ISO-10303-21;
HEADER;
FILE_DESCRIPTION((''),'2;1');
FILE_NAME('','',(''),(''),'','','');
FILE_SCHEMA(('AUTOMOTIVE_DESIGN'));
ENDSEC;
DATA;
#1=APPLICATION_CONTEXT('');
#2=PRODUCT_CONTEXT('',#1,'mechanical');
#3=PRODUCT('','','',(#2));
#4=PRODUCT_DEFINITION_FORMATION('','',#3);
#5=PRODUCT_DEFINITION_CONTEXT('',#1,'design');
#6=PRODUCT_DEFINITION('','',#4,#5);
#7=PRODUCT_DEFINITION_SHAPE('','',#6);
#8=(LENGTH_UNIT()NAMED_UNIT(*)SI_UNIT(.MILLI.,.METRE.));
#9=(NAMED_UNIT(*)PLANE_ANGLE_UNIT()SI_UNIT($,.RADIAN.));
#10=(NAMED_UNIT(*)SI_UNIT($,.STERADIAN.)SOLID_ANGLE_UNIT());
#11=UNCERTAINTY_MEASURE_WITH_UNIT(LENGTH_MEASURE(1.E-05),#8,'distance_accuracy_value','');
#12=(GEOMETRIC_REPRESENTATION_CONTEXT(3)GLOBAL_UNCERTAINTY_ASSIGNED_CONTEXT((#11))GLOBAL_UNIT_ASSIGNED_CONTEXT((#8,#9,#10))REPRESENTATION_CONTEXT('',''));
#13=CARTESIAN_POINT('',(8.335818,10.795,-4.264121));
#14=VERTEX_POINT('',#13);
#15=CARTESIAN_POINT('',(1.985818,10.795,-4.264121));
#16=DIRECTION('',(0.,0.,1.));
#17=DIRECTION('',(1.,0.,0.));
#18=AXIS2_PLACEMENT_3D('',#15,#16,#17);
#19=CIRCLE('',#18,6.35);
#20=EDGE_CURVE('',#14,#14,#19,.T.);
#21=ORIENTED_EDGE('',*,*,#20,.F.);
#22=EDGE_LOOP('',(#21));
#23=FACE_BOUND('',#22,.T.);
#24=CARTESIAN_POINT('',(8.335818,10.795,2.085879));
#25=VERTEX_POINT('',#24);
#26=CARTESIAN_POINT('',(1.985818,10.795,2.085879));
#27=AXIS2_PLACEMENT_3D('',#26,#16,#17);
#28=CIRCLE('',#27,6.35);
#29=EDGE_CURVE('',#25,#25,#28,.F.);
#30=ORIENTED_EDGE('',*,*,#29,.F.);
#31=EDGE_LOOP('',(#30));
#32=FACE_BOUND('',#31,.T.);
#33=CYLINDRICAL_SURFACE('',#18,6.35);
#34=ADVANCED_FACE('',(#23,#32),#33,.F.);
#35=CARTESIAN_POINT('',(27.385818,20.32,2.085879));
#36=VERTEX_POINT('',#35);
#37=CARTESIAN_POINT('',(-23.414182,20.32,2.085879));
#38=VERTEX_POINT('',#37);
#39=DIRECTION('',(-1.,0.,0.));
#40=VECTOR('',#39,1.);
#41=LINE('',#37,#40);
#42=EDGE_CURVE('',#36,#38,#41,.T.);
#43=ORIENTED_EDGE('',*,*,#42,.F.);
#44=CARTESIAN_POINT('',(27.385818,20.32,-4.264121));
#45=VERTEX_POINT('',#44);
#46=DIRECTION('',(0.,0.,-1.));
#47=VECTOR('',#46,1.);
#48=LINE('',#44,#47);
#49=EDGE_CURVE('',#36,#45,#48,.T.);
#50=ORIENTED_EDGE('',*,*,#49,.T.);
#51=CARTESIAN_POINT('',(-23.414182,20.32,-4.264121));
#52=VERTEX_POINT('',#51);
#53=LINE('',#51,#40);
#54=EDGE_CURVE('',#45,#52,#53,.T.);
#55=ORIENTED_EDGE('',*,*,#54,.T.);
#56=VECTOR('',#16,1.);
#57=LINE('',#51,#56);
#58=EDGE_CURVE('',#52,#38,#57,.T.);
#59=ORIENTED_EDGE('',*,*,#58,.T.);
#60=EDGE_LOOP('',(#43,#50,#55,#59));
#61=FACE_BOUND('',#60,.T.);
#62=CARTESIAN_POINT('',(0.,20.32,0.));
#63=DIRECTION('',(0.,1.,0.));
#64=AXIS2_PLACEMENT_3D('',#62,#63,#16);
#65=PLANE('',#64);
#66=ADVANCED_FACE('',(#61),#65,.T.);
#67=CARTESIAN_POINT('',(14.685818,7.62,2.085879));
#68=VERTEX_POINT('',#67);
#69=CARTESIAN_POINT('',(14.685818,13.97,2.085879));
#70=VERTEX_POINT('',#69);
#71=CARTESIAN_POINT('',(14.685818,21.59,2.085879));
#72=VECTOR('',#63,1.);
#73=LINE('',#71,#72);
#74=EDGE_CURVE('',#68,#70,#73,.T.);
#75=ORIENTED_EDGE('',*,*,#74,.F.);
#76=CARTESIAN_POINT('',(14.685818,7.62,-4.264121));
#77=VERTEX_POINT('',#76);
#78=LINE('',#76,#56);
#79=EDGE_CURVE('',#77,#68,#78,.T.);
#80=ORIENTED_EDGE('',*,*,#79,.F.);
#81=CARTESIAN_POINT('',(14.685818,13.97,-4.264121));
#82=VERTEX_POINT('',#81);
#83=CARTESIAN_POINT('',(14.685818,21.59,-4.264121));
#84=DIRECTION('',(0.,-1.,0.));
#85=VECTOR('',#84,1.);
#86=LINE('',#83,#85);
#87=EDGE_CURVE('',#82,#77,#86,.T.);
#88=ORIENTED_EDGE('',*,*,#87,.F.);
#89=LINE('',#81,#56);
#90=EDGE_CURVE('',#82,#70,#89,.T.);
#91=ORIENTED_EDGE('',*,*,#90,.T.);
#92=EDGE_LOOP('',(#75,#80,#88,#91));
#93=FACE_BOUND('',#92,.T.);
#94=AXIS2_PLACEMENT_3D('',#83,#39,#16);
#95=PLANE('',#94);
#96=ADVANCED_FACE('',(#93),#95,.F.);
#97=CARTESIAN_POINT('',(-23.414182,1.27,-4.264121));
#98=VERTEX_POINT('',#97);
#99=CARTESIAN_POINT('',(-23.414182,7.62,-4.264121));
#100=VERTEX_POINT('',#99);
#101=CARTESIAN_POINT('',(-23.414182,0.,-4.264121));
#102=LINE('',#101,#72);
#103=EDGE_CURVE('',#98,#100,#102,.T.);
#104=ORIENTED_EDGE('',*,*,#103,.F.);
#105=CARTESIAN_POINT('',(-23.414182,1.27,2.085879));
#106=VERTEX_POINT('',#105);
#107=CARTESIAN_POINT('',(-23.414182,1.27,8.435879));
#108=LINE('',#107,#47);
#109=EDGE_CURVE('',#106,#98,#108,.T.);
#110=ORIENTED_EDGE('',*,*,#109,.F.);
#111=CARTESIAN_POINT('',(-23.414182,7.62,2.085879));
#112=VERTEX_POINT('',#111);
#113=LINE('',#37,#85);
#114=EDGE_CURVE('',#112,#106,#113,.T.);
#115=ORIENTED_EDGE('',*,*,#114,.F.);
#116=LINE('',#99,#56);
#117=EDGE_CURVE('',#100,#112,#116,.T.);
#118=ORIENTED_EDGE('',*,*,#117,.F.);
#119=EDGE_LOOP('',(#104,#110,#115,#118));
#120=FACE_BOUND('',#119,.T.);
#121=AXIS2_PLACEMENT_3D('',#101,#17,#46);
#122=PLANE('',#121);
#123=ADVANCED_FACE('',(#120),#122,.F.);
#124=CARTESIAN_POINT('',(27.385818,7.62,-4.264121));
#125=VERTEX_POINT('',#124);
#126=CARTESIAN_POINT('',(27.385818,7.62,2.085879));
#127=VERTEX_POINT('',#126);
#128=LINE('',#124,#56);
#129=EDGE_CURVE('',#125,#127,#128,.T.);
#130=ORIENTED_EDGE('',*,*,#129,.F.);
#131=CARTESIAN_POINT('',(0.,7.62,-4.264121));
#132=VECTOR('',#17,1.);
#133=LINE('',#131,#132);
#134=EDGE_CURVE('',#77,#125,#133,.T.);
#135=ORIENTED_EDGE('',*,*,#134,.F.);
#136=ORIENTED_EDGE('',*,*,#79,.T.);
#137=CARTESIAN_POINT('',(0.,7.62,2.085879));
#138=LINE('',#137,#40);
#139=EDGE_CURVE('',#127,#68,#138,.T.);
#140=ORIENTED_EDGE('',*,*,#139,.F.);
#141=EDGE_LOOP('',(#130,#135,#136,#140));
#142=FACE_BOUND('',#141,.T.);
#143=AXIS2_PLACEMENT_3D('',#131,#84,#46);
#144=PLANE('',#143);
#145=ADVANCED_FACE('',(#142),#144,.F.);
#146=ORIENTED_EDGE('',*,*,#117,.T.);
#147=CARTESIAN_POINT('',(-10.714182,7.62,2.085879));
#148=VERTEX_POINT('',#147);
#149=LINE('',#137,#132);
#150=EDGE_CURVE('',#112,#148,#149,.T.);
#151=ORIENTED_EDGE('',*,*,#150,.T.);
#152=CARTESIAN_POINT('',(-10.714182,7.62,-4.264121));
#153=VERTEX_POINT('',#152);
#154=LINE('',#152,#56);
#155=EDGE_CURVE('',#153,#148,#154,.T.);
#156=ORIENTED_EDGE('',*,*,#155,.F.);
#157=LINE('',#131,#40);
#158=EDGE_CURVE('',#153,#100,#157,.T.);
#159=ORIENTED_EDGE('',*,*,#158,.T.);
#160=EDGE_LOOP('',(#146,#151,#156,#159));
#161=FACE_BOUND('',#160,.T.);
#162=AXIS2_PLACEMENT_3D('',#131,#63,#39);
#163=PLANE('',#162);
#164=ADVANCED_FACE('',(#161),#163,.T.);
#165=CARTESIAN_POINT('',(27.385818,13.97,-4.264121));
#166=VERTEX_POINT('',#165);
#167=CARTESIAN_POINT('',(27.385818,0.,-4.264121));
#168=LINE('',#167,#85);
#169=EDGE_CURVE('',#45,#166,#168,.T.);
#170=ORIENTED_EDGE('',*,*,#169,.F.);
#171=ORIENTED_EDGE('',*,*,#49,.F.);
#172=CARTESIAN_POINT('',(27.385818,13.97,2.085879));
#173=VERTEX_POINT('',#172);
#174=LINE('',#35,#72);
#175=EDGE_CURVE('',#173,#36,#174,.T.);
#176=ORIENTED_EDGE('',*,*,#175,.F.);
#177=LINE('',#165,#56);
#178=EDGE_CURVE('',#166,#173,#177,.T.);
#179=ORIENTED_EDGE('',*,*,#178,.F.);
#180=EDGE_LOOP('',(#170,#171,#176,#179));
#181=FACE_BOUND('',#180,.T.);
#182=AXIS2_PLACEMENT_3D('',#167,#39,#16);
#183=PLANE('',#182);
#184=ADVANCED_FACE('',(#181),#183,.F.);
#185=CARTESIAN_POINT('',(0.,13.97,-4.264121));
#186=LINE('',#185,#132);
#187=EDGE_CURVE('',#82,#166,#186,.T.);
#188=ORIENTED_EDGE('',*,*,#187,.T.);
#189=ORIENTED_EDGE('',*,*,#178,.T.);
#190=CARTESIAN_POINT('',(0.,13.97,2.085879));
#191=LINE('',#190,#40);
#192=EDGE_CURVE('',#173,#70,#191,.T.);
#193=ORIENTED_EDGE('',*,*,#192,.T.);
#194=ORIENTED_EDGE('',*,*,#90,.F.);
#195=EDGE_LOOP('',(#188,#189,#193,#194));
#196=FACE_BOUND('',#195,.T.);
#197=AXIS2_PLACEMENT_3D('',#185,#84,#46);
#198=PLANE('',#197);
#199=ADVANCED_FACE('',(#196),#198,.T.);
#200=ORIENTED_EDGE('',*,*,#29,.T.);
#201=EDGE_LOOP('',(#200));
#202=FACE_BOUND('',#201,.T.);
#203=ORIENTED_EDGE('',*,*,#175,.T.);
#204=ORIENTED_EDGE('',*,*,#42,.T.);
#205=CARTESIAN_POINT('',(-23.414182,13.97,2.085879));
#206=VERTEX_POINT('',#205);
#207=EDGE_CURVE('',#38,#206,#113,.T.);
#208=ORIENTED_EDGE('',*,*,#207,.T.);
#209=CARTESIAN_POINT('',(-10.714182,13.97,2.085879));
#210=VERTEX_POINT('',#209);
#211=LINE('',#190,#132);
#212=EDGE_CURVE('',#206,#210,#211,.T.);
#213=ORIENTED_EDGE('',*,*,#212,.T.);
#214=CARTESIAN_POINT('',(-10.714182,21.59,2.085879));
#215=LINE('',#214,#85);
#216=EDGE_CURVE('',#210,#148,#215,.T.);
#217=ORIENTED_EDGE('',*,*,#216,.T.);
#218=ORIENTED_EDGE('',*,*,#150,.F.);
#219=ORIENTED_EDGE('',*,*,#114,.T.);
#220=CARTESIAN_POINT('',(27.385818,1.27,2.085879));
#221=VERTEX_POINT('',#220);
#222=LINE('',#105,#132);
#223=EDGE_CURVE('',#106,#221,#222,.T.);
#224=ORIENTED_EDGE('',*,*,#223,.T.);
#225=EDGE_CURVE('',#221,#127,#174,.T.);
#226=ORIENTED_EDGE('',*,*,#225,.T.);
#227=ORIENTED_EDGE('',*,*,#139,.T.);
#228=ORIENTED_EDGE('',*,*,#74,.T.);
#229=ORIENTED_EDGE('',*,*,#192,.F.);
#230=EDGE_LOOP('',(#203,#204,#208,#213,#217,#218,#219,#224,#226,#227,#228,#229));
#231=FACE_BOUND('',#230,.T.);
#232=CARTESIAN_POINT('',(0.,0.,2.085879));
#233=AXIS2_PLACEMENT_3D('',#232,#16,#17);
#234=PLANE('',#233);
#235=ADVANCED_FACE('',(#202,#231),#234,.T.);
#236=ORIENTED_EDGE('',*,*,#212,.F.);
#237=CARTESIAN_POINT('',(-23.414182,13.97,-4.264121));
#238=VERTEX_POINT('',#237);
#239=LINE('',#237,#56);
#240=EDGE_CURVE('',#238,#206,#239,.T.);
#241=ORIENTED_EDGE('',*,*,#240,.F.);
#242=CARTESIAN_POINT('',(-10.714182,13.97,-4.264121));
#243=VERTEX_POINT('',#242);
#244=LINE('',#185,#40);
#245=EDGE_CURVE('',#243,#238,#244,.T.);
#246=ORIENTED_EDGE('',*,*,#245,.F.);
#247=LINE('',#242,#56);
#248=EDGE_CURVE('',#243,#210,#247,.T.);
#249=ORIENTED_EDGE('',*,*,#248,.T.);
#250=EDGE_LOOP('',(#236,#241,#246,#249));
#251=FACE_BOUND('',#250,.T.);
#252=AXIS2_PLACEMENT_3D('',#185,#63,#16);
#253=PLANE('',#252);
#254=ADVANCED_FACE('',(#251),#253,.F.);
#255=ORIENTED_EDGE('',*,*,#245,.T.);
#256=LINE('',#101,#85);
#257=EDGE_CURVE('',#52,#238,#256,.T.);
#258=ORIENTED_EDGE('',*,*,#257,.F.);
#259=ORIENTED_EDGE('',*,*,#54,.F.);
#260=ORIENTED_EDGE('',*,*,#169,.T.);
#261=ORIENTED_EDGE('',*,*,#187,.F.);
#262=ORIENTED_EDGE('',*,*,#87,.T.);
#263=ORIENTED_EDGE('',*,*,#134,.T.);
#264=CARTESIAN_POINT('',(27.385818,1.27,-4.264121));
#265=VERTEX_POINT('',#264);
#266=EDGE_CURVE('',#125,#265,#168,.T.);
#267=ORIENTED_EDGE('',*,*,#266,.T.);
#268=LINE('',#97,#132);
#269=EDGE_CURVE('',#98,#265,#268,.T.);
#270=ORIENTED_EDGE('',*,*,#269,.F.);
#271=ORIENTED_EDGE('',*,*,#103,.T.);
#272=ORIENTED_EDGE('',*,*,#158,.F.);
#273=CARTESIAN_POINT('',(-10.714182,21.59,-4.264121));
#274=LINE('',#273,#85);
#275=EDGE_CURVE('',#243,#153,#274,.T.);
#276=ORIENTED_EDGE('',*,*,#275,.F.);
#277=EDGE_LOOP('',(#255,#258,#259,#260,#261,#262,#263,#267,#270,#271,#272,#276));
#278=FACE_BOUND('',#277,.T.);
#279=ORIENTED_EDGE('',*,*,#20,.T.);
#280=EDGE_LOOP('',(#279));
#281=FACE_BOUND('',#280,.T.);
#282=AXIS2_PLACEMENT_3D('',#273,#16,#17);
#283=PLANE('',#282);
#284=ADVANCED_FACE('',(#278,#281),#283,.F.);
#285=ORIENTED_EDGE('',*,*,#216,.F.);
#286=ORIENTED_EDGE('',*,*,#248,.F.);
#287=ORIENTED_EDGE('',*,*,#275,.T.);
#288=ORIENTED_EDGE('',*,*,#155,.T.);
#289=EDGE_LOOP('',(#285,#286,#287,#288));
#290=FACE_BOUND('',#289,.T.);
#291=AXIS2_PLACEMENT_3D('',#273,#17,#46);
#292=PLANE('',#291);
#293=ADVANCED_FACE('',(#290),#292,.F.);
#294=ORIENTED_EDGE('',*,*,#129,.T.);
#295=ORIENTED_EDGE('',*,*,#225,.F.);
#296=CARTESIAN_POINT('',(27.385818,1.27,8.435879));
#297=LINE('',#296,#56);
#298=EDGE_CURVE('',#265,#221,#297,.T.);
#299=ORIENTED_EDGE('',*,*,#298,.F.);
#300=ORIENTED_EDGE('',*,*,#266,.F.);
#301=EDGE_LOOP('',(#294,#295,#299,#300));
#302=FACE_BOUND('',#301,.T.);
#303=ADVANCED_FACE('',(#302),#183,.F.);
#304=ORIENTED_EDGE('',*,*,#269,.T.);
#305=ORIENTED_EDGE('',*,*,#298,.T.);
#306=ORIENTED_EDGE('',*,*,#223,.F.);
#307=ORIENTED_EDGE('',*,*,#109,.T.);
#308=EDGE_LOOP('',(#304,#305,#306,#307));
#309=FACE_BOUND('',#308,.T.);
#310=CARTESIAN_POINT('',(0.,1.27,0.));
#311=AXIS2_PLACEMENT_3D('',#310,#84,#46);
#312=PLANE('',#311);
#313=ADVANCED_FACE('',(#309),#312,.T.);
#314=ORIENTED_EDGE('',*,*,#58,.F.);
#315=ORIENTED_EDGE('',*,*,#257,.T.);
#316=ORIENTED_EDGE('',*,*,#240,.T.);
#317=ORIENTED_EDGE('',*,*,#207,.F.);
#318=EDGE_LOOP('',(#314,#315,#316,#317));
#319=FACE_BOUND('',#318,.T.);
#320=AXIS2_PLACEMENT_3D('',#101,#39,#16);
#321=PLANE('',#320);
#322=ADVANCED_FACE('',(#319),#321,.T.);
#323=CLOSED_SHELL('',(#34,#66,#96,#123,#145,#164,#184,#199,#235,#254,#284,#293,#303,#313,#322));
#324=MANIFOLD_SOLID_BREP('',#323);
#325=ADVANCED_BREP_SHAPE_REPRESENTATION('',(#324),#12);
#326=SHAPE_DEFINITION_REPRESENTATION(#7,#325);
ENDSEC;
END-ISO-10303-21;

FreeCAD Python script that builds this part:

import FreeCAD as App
import Part
import Sketcher

V = App.Vector
Q = App.Units.Quantity


def add_polygon(sketch, points):
    """Adds a closed chain of lines whose ends are joined by coincident constraints."""
    first, n = sketch.GeometryCount, len(points)
    for a, b in zip(points, points[1:] + points[:1]):
        sketch.addGeometry(Part.LineSegment(App.Vector(*a, 0), App.Vector(*b, 0)), False)
    for i in range(n):
        sketch.addConstraint(Sketcher.Constraint("Coincident", first + i, 2, first + (i + 1) % n, 1))

doc = App.newDocument("Part")
body = doc.addObject("PartDesign::Body", "Body")

# Sketch on XZ plane
sketch1 = body.newObject("Sketcher::SketchObject", "Sketch")
sketch1.AttachmentSupport = (doc.getObject("XZ_Plane"), [""])
sketch1.MapMode = "FlatFace"
add_polygon(sketch1, [(-11, -4), (-11, 8), (15, 8), (15, -4)])  # lines 0-3
sketch1.addConstraint([
    Sketcher.Constraint("Vertical", 0),
    Sketcher.Constraint("Horizontal", 1),
    Sketcher.Constraint("Vertical", 2),
    Sketcher.Constraint("Horizontal", 3),
    Sketcher.Constraint("DistanceX", 1, 1, 1, 2, Q("1 in")),
    Sketcher.Constraint("DistanceY", 0, 1, 0, 2, Q("0.5 in")),
    Sketcher.Constraint("DistanceX", 0, 2, -1, 1, 10.714182),
    Sketcher.Constraint("DistanceY", -1, 1, 0, 2, 8.435879),
])
pad1 = body.newObject("PartDesign::Pad", "Pad")
pad1.Profile = sketch1
pad1.Length = Q("0.85 in")
pad1.Reversed = True

# Sketch on XY plane
sketch2 = body.newObject("Sketcher::SketchObject", "Sketch001")
sketch2.AttachmentSupport = (doc.getObject("XY_Plane"), [""])
sketch2.MapMode = "FlatFace"
sketch2.AttachmentOffset = App.Placement(V(0, 0, 8.435879), App.Rotation())
add_polygon(sketch2, [(-23, 22), (-23, 14), (-11, 14), (-11, 22)])  # lines 0-3
add_polygon(sketch2, [(-23, 8), (-23, 0), (-11, 0), (-11, 8)])  # lines 4-7
add_polygon(sketch2, [(15, 22), (15, 14), (27, 14), (27, 22)])  # lines 8-11
add_polygon(sketch2, [(15, 8), (15, 0), (27, 0), (27, 8)])  # lines 12-15
sketch2.addConstraint([
    Sketcher.Constraint("Vertical", 0),
    Sketcher.Constraint("Horizontal", 1),
    Sketcher.Constraint("Vertical", 2),
    Sketcher.Constraint("Horizontal", 3),
    Sketcher.Constraint("Vertical", 4),
    Sketcher.Constraint("Horizontal", 5),
    Sketcher.Constraint("Vertical", 6),
    Sketcher.Constraint("Horizontal", 7),
    Sketcher.Constraint("Vertical", 8),
    Sketcher.Constraint("Horizontal", 9),
    Sketcher.Constraint("Vertical", 10),
    Sketcher.Constraint("Horizontal", 11),
    Sketcher.Constraint("Vertical", 12),
    Sketcher.Constraint("Horizontal", 13),
    Sketcher.Constraint("Vertical", 14),
    Sketcher.Constraint("Horizontal", 15),
    Sketcher.Constraint("PointOnObject", 4, 2, -1),
    Sketcher.Constraint("PointOnObject", 12, 2, -1),
    Sketcher.Constraint("Horizontal", 1, 2, 8, 2),
    Sketcher.Constraint("Horizontal", 3, 2, 10, 2),
    Sketcher.Constraint("Horizontal", 7, 2, 14, 2),
    Sketcher.Constraint("Vertical", 3, 2, 4, 2),
    Sketcher.Constraint("Vertical", 2, 2, 5, 2),
    Sketcher.Constraint("Vertical", 11, 2, 12, 2),
    Sketcher.Constraint("Vertical", 10, 2, 13, 2),
    Sketcher.Constraint("Equal", 7, 9),
    Sketcher.Constraint("Equal", 2, 4),
    Sketcher.Constraint("DistanceX", 1, 1, 1, 2, Q("0.5 in")),
    Sketcher.Constraint("DistanceY", 0, 2, 0, 1, Q("0.3 in")),
    Sketcher.Constraint("DistanceX", 1, 2, 8, 2, Q("1 in")),
    Sketcher.Constraint("DistanceY", -1, 1, 0, 2, Q("0.55 in")),
    Sketcher.Constraint("DistanceX", 0, 2, -1, 1, 23.414182),
])
pad2 = body.newObject("PartDesign::Pad", "Pad001")
pad2.Profile = sketch2
pad2.Length = Q("0.5 in")
pad2.Reversed = True

# Sketch on XY plane
sketch3 = body.newObject("Sketcher::SketchObject", "Sketch002")
sketch3.AttachmentSupport = (doc.getObject("XY_Plane"), [""])
sketch3.MapMode = "FlatFace"
sketch3.AttachmentOffset = App.Placement(V(0, 0, 8.435879), App.Rotation())
sketch3.addGeometry(Part.Circle(V(2, 11, 0), V(0, 0, 1), 6), False)
sketch3.addConstraint([
    Sketcher.Constraint("Diameter", 0, Q("0.5 in")),
    Sketcher.Constraint("DistanceY", -1, 1, 0, 3, Q("0.425 in")),
    Sketcher.Constraint("DistanceX", -1, 1, 0, 3, 1.985818),
])
pocket1 = body.newObject("PartDesign::Pocket", "Pocket")
pocket1.Profile = sketch3
pocket1.Type = "ThroughAll"

# Sketch on XZ plane
sketch4 = body.newObject("Sketcher::SketchObject", "Sketch003")
sketch4.AttachmentSupport = (doc.getObject("XZ_Plane"), [""])
sketch4.MapMode = "FlatFace"
sketch4.AttachmentOffset = App.Placement(V(0, 0, -0.85 * 25.4), App.Rotation())
add_polygon(sketch4, [(-23, -4), (-23, 8), (27, 8), (27, -4)])  # lines 0-3
sketch4.addConstraint([
    Sketcher.Constraint("Vertical", 0),
    Sketcher.Constraint("Horizontal", 1),
    Sketcher.Constraint("Vertical", 2),
    Sketcher.Constraint("Horizontal", 3),
    Sketcher.Constraint("DistanceX", 1, 1, 1, 2, Q("2 in")),
    Sketcher.Constraint("DistanceY", 0, 1, 0, 2, Q("0.5 in")),
    Sketcher.Constraint("DistanceX", 0, 2, -1, 1, 23.414182),
    Sketcher.Constraint("DistanceY", -1, 1, 0, 2, 8.435879),
])
pocket2 = body.newObject("PartDesign::Pocket", "Pocket001")
pocket2.Profile = sketch4
pocket2.Length = Q("0.05 in")
pocket2.Reversed = True

# Sketch on XZ plane
sketch5 = body.newObject("Sketcher::SketchObject", "Sketch004")
sketch5.AttachmentSupport = (doc.getObject("XZ_Plane"), [""])
sketch5.MapMode = "FlatFace"
add_polygon(sketch5, [(-23, 8), (-23, -4), (27, -4), (27, 8)])  # lines 0-3
sketch5.addConstraint([
    Sketcher.Constraint("Vertical", 0),
    Sketcher.Constraint("Horizontal", 1),
    Sketcher.Constraint("Vertical", 2),
    Sketcher.Constraint("Horizontal", 3),
    Sketcher.Constraint("DistanceX", 1, 1, 1, 2, Q("2 in")),
    Sketcher.Constraint("DistanceY", 0, 2, 0, 1, Q("0.5 in")),
    Sketcher.Constraint("DistanceX", 0, 2, -1, 1, 23.414182),
    Sketcher.Constraint("DistanceY", 0, 2, -1, 1, 4.264121),
])
pocket3 = body.newObject("PartDesign::Pocket", "Pocket002")
pocket3.Profile = sketch5
pocket3.Length = Q("0.05 in")

# Sketch on XY plane
sketch6 = body.newObject("Sketcher::SketchObject", "Sketch005")
sketch6.AttachmentSupport = (doc.getObject("XY_Plane"), [""])
sketch6.MapMode = "FlatFace"
sketch6.AttachmentOffset = App.Placement(V(0, 0, 8.435879), App.Rotation())
add_polygon(sketch6, [(-23, 20), (-23, 1), (27, 1), (27, 20)])  # lines 0-3
sketch6.addConstraint([
    Sketcher.Constraint("Vertical", 0),
    Sketcher.Constraint("Horizontal", 1),
    Sketcher.Constraint("Vertical", 2),
    Sketcher.Constraint("Horizontal", 3),
    Sketcher.Constraint("DistanceX", 1, 1, 1, 2, Q("2 in")),
    Sketcher.Constraint("DistanceY", 0, 2, 0, 1, Q("0.75 in")),
    Sketcher.Constraint("DistanceY", -1, 1, 2, 2, Q("0.8 in")),
    Sketcher.Constraint("DistanceX", 0, 2, -1, 1, 23.414182),
])
pocket4 = body.newObject("PartDesign::Pocket", "Pocket003")
pocket4.Profile = sketch6
pocket4.Length = Q("0.25 in")

doc.recompute()
